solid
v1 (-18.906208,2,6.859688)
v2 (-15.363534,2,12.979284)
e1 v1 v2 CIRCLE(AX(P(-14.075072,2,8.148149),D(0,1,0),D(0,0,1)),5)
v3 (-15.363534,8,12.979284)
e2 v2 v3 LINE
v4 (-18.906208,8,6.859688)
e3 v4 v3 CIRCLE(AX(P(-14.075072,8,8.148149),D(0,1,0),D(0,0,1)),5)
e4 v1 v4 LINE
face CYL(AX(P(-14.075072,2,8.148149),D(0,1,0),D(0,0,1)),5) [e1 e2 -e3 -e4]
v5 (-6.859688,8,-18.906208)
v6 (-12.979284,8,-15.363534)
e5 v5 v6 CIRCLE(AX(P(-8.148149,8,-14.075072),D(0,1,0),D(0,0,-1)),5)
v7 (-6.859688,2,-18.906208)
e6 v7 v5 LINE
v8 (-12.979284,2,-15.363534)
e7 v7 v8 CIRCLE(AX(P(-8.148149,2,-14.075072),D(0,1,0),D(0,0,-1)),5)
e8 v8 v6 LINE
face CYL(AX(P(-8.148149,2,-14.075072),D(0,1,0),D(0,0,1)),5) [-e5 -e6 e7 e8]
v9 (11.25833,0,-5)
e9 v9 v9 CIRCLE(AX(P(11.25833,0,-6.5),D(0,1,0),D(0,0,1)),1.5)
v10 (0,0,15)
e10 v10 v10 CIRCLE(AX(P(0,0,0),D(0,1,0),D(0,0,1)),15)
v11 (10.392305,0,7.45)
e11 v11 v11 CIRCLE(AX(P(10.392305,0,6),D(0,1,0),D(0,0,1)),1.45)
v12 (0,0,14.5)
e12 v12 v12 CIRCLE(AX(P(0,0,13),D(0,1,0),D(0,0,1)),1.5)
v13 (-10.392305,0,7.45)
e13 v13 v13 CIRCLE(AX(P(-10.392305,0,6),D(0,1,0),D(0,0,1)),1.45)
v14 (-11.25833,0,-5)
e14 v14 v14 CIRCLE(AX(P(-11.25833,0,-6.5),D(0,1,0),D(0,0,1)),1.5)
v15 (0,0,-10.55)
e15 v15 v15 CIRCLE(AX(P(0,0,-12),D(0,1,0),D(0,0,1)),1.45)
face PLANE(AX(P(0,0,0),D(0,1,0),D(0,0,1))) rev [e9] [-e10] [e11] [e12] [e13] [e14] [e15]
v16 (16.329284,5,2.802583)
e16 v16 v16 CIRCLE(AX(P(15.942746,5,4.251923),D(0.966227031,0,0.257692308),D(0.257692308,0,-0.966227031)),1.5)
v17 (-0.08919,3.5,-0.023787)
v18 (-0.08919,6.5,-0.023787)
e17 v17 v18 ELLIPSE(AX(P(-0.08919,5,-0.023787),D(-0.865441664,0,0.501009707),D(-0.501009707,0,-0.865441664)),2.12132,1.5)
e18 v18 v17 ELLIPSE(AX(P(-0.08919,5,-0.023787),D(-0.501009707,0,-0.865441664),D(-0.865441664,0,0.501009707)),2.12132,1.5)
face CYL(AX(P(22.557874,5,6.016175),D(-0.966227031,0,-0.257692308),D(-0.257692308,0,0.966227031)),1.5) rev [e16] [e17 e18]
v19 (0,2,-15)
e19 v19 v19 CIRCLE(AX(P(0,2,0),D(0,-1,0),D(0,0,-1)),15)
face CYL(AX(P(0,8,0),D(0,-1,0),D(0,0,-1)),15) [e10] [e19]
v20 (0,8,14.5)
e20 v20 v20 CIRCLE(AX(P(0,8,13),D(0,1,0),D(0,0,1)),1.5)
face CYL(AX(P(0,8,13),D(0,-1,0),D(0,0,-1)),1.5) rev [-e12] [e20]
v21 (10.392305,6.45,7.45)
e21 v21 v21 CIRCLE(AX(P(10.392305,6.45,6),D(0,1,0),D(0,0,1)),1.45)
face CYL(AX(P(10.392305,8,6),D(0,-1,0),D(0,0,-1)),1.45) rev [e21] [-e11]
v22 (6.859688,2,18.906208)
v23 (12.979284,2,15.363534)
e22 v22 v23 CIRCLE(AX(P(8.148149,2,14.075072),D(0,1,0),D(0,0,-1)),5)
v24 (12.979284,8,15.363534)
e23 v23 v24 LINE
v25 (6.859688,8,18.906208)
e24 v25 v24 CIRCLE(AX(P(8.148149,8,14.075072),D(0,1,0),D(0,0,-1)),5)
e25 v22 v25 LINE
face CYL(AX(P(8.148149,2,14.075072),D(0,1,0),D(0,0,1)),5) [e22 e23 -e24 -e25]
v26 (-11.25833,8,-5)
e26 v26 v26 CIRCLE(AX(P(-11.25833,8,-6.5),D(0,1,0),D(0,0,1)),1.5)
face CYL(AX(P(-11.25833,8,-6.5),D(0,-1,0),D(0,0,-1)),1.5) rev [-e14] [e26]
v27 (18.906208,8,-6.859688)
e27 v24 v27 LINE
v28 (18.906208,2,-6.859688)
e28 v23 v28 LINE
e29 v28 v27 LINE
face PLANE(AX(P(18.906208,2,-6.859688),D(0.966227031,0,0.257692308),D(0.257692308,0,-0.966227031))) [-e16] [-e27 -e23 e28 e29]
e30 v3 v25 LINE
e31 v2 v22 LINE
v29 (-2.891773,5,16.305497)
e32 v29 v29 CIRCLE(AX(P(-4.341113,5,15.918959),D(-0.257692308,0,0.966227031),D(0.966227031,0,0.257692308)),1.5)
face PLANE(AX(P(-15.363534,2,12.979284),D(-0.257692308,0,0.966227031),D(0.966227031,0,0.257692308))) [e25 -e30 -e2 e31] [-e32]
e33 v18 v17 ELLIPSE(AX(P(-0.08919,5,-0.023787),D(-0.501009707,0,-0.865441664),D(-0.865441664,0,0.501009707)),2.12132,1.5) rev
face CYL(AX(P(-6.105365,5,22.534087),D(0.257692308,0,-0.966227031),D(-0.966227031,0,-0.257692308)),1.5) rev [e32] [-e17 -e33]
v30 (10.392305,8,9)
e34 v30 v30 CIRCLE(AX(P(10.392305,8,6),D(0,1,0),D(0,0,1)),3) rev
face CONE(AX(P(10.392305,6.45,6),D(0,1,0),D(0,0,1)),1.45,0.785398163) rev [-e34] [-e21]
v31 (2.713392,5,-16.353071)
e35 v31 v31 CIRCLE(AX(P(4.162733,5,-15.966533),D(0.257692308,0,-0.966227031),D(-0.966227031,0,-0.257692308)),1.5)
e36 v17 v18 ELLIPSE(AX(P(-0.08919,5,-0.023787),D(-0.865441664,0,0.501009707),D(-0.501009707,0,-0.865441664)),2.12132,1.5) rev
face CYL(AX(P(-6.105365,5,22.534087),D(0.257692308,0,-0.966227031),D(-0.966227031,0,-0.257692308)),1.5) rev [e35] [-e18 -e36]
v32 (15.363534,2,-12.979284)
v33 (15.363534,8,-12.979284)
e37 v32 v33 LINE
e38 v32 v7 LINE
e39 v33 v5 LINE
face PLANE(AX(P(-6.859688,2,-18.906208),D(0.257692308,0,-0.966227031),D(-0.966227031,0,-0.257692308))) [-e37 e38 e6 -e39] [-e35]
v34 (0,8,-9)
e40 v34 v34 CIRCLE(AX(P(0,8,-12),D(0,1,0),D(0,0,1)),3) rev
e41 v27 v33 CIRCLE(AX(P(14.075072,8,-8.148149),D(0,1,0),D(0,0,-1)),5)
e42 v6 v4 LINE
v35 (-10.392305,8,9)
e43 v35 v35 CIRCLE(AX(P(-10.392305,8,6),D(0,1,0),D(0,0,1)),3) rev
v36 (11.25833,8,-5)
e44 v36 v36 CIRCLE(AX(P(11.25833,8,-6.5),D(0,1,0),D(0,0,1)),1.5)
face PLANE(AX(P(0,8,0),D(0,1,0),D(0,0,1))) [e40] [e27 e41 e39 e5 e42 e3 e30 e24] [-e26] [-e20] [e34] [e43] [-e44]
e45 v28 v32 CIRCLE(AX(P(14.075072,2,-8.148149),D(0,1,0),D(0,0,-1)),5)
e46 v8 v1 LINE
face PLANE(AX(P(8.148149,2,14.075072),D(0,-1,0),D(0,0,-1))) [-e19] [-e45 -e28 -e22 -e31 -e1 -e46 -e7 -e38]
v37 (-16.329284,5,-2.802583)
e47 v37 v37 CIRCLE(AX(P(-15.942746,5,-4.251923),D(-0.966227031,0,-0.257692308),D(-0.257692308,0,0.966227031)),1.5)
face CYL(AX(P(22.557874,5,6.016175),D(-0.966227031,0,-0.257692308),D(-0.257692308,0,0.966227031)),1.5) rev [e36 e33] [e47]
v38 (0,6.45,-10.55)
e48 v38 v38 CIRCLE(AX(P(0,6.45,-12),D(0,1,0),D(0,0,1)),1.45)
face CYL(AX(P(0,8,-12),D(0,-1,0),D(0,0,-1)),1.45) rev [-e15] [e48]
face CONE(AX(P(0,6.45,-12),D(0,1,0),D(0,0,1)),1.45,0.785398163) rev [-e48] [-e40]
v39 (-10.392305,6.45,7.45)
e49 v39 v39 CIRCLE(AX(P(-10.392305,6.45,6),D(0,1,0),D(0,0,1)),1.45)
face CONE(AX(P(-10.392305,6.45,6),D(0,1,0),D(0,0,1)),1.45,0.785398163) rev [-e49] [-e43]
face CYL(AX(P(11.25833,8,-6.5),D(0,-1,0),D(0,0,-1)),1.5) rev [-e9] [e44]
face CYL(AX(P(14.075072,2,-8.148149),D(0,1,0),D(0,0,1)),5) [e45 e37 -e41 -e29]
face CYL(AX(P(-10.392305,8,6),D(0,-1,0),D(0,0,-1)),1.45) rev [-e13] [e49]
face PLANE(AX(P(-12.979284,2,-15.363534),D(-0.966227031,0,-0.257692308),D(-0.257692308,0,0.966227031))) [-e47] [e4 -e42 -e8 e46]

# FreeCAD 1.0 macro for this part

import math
import FreeCAD as App
import Part
import Sketcher


def edges_at(feature, points):
    """Names of the edges that pass closest to the given points."""
    edges = feature.Shape.Edges
    near = lambda p: min(range(len(edges)), key=lambda i: edges[i].distToShape(Part.Vertex(*p))[0])
    return sorted({f"Edge{near(p) + 1}" for p in points})

doc = App.newDocument("Part")
body = doc.addObject("PartDesign::Body", "Body")

# Sketch on XZ plane
sketch1 = doc.addObject("Sketcher::SketchObject", "Sketch")
body.addObject(sketch1)
sketch1.AttachmentSupport = (doc.XZ_Plane, [""])
sketch1.MapMode = "FlatFace"
sketch1.addGeometry([
    Part.Circle(App.Vector(0, 0, 0), App.Vector(0, 0, 1), 15),  # 0
    Part.Circle(App.Vector(-10.4, 6, 0), App.Vector(0, 0, 1), 1.4),  # 1
    Part.Circle(App.Vector(0, 13, 0), App.Vector(0, 0, 1), 1.5),  # 2
    Part.Circle(App.Vector(10.4, 6, 0), App.Vector(0, 0, 1), 1.4),  # 3
    Part.Circle(App.Vector(-11.3, -6.5, 0), App.Vector(0, 0, 1), 1.5),  # 4
    Part.Circle(App.Vector(0, -12, 0), App.Vector(0, 0, 1), 1.4),  # 5
    Part.Circle(App.Vector(11.3, -6.5, 0), App.Vector(0, 0, 1), 1.5),  # 6
], False)
sketch1.addConstraint([
    Sketcher.Constraint("Coincident", 0, 3, -1, 1),
    Sketcher.Constraint("Equal", 1, 3),
    Sketcher.Constraint("Equal", 2, 4),
    Sketcher.Constraint("Equal", 3, 5),
    Sketcher.Constraint("Equal", 4, 6),
    Sketcher.Constraint("Symmetric", 1, 3, 3, 3, -2),
    Sketcher.Constraint("Symmetric", 4, 3, 6, 3, -2),
    Sketcher.Constraint("PointOnObject", 2, 3, -2),
    Sketcher.Constraint("PointOnObject", 5, 3, -2),
    Sketcher.Constraint("Diameter", 0, 30.0),
    Sketcher.Constraint("Diameter", 2, 3.0),
    Sketcher.Constraint("Diameter", 1, 2.9),
    Sketcher.Constraint("DistanceY", -1, 1, 1, 3, 6.0),
    Sketcher.Constraint("DistanceY", -1, 1, 2, 3, 13.0),
    Sketcher.Constraint("DistanceY", 5, 3, -1, 1, 12.0),
    Sketcher.Constraint("DistanceY", 4, 3, -1, 1, 6.5),
    Sketcher.Constraint("DistanceX", 4, 3, -1, 1, 11.25833),
    Sketcher.Constraint("DistanceX", 1, 3, 3, 3, 20.78461),
])
pad1 = doc.addObject("PartDesign::Pad", "Pad")
body.addObject(pad1)
pad1.Profile = sketch1
pad1.Length = 8
pad1.Reversed = True

# Sketch on XZ plane
sketch2 = doc.addObject("Sketcher::SketchObject", "Sketch001")
body.addObject(sketch2)
sketch2.AttachmentSupport = (doc.XZ_Plane, [""])
sketch2.MapMode = "FlatFace"
sketch2.AttachmentOffset = App.Placement(App.Vector(0, 0, -8), App.Rotation())
sketch2.addGeometry([
    Part.LineSegment(App.Vector(15.4, -13, 0), App.Vector(-6.9, -18.9, 0)),  # 0
    Part.ArcOfCircle(Part.Circle(App.Vector(-8.1, -14.1, 0), App.Vector(0, 0, 1), 5), math.radians(-165), math.radians(-75)),  # 1
    Part.LineSegment(App.Vector(-13, -15.4, 0), App.Vector(-18.9, 6.9, 0)),  # 2
    Part.ArcOfCircle(Part.Circle(App.Vector(-14.1, 8.1, 0), App.Vector(0, 0, 1), 5), math.radians(105), math.radians(195)),  # 3
    Part.LineSegment(App.Vector(-15.4, 13, 0), App.Vector(6.9, 18.9, 0)),  # 4
    Part.ArcOfCircle(Part.Circle(App.Vector(8.1, 14.1, 0), App.Vector(0, 0, 1), 5), math.radians(15), math.radians(105)),  # 5
    Part.LineSegment(App.Vector(13, 15.4, 0), App.Vector(18.9, -6.9, 0)),  # 6
    Part.ArcOfCircle(Part.Circle(App.Vector(14.1, -8.1, 0), App.Vector(0, 0, 1), 5), math.radians(-75), math.radians(15)),  # 7
    Part.Circle(App.Vector(10.4, 6, 0), App.Vector(0, 0, 1), 1.4),  # 8
    Part.Circle(App.Vector(0, 13, 0), App.Vector(0, 0, 1), 1.5),  # 9
    Part.Circle(App.Vector(-10.4, 6, 0), App.Vector(0, 0, 1), 1.4),  # 10
    Part.Circle(App.Vector(11.3, -6.5, 0), App.Vector(0, 0, 1), 1.5),  # 11
    Part.Circle(App.Vector(0, -12, 0), App.Vector(0, 0, 1), 1.4),  # 12
    Part.Circle(App.Vector(-11.3, -6.5, 0), App.Vector(0, 0, 1), 1.5),  # 13
], False)
sketch2.addConstraint([
    Sketcher.Constraint("Tangent", 0, 2, 1, 2),
    Sketcher.Constraint("Tangent", 1, 1, 2, 1),
    Sketcher.Constraint("Tangent", 2, 2, 3, 2),
    Sketcher.Constraint("Tangent", 3, 1, 4, 1),
    Sketcher.Constraint("Tangent", 4, 2, 5, 2),
    Sketcher.Constraint("Tangent", 5, 1, 6, 1),
    Sketcher.Constraint("Tangent", 6, 2, 7, 2),
    Sketcher.Constraint("Tangent", 7, 1, 0, 1),
    Sketcher.Constraint("Equal", 1, 3),
    Sketcher.Constraint("Equal", 3, 5),
    Sketcher.Constraint("Equal", 5, 7),
    Sketcher.Constraint("Equal", 8, 10),
    Sketcher.Constraint("Equal", 9, 11),
    Sketcher.Constraint("Equal", 10, 12),
    Sketcher.Constraint("Equal", 11, 13),
    Sketcher.Constraint("Symmetric", 1, 3, 5, 3, -1, 1),
    Sketcher.Constraint("Symmetric", 3, 3, 7, 3, -1, 1),
    Sketcher.Constraint("Symmetric", 8, 3, 10, 3, -2),
    Sketcher.Constraint("Symmetric", 11, 3, 13, 3, -2),
    Sketcher.Constraint("PointOnObject", 9, 3, -2),
    Sketcher.Constraint("PointOnObject", 12, 3, -2),
    Sketcher.Constraint("Perpendicular", 0, 2),
    Sketcher.Constraint("Equal", 0, 2),
    Sketcher.Constraint("Diameter", 9, 3.0),
    Sketcher.Constraint("Radius", 1, 5.0),
    Sketcher.Constraint("Diameter", 8, 2.9),
    Sketcher.Constraint("Distance", 0, 23.0),
    Sketcher.Constraint("DistanceY", -1, 1, 8, 3, 6.0),
    Sketcher.Constraint("DistanceY", -1, 1, 9, 3, 13.0),
    Sketcher.Constraint("DistanceY", 12, 3, -1, 1, 12.0),
    Sketcher.Constraint("DistanceY", 11, 3, -1, 1, 6.5),
    Sketcher.Constraint("DistanceX", 1, 3, 5, 3, 16.296299),
    Sketcher.Constraint("DistanceX", -1, 1, 11, 3, 11.25833),
    Sketcher.Constraint("DistanceX", 10, 3, 8, 3, 20.78461),
])
pad2 = doc.addObject("PartDesign::Pad", "Pad001")
body.addObject(pad2)
pad2.Profile = sketch2
pad2.Length = 6
doc.recompute()

chamfer = doc.addObject("PartDesign::Chamfer", "Chamfer")
body.addObject(chamfer)
chamfer.Base = (pad2, edges_at(pad2, [(8.942, 8, 6), (-1.45, 8, -12), (-11.842, 8, 6)]))
chamfer.Size = 1.55

# Sketch on an angled plane
sketch3 = doc.addObject("Sketcher::SketchObject", "Sketch002")
body.addObject(sketch3)
sketch3.Placement = App.Placement(App.Vector(-15.942746, 0, -4.251923), App.Rotation(App.Vector(-0.257692308, 0, 0.96622703), App.Vector(0, 0.999999999, 0), App.Vector(-0.96622703, 0, -0.257692308), "ZXY"))
sketch3.addGeometry(Part.Circle(App.Vector(0, 5, 0), App.Vector(0, 0, 1), 1.5), False)
sketch3.addConstraint([
    Sketcher.Constraint("PointOnObject", 0, 3, -2),
    Sketcher.Constraint("Diameter", 0, 3.0),
    Sketcher.Constraint("DistanceY", -1, 1, 0, 3, 5.0),
])
pocket1 = doc.addObject("PartDesign::Pocket", "Pocket")
body.addObject(pocket1)
pocket1.Profile = sketch3
pocket1.Type = "ThroughAll"

# Sketch on an angled plane
sketch4 = doc.addObject("Sketcher::SketchObject", "Sketch003")
body.addObject(sketch4)
sketch4.Placement = App.Placement(App.Vector(4.251923, 0, -15.942746), App.Rotation(App.Vector(-0.96622703, 0, -0.257692308), App.Vector(0, 0.999999999, 0), App.Vector(0.257692308, 0, -0.96622703), "ZXY"))
sketch4.addGeometry(Part.Circle(App.Vector(0.1, 5, 0), App.Vector(0, 0, 1), 1.5), False)
sketch4.addConstraint([
    Sketcher.Constraint("Diameter", 0, 3.0),
    Sketcher.Constraint("DistanceY", -1, 1, 0, 3, 5.0),
    Sketcher.Constraint("DistanceX", -1, 1, 0, 3, 0.092308),
])
pocket2 = doc.addObject("PartDesign::Pocket", "Pocket001")
body.addObject(pocket2)
pocket2.Profile = sketch4
pocket2.Type = "ThroughAll"

doc.recompute()
